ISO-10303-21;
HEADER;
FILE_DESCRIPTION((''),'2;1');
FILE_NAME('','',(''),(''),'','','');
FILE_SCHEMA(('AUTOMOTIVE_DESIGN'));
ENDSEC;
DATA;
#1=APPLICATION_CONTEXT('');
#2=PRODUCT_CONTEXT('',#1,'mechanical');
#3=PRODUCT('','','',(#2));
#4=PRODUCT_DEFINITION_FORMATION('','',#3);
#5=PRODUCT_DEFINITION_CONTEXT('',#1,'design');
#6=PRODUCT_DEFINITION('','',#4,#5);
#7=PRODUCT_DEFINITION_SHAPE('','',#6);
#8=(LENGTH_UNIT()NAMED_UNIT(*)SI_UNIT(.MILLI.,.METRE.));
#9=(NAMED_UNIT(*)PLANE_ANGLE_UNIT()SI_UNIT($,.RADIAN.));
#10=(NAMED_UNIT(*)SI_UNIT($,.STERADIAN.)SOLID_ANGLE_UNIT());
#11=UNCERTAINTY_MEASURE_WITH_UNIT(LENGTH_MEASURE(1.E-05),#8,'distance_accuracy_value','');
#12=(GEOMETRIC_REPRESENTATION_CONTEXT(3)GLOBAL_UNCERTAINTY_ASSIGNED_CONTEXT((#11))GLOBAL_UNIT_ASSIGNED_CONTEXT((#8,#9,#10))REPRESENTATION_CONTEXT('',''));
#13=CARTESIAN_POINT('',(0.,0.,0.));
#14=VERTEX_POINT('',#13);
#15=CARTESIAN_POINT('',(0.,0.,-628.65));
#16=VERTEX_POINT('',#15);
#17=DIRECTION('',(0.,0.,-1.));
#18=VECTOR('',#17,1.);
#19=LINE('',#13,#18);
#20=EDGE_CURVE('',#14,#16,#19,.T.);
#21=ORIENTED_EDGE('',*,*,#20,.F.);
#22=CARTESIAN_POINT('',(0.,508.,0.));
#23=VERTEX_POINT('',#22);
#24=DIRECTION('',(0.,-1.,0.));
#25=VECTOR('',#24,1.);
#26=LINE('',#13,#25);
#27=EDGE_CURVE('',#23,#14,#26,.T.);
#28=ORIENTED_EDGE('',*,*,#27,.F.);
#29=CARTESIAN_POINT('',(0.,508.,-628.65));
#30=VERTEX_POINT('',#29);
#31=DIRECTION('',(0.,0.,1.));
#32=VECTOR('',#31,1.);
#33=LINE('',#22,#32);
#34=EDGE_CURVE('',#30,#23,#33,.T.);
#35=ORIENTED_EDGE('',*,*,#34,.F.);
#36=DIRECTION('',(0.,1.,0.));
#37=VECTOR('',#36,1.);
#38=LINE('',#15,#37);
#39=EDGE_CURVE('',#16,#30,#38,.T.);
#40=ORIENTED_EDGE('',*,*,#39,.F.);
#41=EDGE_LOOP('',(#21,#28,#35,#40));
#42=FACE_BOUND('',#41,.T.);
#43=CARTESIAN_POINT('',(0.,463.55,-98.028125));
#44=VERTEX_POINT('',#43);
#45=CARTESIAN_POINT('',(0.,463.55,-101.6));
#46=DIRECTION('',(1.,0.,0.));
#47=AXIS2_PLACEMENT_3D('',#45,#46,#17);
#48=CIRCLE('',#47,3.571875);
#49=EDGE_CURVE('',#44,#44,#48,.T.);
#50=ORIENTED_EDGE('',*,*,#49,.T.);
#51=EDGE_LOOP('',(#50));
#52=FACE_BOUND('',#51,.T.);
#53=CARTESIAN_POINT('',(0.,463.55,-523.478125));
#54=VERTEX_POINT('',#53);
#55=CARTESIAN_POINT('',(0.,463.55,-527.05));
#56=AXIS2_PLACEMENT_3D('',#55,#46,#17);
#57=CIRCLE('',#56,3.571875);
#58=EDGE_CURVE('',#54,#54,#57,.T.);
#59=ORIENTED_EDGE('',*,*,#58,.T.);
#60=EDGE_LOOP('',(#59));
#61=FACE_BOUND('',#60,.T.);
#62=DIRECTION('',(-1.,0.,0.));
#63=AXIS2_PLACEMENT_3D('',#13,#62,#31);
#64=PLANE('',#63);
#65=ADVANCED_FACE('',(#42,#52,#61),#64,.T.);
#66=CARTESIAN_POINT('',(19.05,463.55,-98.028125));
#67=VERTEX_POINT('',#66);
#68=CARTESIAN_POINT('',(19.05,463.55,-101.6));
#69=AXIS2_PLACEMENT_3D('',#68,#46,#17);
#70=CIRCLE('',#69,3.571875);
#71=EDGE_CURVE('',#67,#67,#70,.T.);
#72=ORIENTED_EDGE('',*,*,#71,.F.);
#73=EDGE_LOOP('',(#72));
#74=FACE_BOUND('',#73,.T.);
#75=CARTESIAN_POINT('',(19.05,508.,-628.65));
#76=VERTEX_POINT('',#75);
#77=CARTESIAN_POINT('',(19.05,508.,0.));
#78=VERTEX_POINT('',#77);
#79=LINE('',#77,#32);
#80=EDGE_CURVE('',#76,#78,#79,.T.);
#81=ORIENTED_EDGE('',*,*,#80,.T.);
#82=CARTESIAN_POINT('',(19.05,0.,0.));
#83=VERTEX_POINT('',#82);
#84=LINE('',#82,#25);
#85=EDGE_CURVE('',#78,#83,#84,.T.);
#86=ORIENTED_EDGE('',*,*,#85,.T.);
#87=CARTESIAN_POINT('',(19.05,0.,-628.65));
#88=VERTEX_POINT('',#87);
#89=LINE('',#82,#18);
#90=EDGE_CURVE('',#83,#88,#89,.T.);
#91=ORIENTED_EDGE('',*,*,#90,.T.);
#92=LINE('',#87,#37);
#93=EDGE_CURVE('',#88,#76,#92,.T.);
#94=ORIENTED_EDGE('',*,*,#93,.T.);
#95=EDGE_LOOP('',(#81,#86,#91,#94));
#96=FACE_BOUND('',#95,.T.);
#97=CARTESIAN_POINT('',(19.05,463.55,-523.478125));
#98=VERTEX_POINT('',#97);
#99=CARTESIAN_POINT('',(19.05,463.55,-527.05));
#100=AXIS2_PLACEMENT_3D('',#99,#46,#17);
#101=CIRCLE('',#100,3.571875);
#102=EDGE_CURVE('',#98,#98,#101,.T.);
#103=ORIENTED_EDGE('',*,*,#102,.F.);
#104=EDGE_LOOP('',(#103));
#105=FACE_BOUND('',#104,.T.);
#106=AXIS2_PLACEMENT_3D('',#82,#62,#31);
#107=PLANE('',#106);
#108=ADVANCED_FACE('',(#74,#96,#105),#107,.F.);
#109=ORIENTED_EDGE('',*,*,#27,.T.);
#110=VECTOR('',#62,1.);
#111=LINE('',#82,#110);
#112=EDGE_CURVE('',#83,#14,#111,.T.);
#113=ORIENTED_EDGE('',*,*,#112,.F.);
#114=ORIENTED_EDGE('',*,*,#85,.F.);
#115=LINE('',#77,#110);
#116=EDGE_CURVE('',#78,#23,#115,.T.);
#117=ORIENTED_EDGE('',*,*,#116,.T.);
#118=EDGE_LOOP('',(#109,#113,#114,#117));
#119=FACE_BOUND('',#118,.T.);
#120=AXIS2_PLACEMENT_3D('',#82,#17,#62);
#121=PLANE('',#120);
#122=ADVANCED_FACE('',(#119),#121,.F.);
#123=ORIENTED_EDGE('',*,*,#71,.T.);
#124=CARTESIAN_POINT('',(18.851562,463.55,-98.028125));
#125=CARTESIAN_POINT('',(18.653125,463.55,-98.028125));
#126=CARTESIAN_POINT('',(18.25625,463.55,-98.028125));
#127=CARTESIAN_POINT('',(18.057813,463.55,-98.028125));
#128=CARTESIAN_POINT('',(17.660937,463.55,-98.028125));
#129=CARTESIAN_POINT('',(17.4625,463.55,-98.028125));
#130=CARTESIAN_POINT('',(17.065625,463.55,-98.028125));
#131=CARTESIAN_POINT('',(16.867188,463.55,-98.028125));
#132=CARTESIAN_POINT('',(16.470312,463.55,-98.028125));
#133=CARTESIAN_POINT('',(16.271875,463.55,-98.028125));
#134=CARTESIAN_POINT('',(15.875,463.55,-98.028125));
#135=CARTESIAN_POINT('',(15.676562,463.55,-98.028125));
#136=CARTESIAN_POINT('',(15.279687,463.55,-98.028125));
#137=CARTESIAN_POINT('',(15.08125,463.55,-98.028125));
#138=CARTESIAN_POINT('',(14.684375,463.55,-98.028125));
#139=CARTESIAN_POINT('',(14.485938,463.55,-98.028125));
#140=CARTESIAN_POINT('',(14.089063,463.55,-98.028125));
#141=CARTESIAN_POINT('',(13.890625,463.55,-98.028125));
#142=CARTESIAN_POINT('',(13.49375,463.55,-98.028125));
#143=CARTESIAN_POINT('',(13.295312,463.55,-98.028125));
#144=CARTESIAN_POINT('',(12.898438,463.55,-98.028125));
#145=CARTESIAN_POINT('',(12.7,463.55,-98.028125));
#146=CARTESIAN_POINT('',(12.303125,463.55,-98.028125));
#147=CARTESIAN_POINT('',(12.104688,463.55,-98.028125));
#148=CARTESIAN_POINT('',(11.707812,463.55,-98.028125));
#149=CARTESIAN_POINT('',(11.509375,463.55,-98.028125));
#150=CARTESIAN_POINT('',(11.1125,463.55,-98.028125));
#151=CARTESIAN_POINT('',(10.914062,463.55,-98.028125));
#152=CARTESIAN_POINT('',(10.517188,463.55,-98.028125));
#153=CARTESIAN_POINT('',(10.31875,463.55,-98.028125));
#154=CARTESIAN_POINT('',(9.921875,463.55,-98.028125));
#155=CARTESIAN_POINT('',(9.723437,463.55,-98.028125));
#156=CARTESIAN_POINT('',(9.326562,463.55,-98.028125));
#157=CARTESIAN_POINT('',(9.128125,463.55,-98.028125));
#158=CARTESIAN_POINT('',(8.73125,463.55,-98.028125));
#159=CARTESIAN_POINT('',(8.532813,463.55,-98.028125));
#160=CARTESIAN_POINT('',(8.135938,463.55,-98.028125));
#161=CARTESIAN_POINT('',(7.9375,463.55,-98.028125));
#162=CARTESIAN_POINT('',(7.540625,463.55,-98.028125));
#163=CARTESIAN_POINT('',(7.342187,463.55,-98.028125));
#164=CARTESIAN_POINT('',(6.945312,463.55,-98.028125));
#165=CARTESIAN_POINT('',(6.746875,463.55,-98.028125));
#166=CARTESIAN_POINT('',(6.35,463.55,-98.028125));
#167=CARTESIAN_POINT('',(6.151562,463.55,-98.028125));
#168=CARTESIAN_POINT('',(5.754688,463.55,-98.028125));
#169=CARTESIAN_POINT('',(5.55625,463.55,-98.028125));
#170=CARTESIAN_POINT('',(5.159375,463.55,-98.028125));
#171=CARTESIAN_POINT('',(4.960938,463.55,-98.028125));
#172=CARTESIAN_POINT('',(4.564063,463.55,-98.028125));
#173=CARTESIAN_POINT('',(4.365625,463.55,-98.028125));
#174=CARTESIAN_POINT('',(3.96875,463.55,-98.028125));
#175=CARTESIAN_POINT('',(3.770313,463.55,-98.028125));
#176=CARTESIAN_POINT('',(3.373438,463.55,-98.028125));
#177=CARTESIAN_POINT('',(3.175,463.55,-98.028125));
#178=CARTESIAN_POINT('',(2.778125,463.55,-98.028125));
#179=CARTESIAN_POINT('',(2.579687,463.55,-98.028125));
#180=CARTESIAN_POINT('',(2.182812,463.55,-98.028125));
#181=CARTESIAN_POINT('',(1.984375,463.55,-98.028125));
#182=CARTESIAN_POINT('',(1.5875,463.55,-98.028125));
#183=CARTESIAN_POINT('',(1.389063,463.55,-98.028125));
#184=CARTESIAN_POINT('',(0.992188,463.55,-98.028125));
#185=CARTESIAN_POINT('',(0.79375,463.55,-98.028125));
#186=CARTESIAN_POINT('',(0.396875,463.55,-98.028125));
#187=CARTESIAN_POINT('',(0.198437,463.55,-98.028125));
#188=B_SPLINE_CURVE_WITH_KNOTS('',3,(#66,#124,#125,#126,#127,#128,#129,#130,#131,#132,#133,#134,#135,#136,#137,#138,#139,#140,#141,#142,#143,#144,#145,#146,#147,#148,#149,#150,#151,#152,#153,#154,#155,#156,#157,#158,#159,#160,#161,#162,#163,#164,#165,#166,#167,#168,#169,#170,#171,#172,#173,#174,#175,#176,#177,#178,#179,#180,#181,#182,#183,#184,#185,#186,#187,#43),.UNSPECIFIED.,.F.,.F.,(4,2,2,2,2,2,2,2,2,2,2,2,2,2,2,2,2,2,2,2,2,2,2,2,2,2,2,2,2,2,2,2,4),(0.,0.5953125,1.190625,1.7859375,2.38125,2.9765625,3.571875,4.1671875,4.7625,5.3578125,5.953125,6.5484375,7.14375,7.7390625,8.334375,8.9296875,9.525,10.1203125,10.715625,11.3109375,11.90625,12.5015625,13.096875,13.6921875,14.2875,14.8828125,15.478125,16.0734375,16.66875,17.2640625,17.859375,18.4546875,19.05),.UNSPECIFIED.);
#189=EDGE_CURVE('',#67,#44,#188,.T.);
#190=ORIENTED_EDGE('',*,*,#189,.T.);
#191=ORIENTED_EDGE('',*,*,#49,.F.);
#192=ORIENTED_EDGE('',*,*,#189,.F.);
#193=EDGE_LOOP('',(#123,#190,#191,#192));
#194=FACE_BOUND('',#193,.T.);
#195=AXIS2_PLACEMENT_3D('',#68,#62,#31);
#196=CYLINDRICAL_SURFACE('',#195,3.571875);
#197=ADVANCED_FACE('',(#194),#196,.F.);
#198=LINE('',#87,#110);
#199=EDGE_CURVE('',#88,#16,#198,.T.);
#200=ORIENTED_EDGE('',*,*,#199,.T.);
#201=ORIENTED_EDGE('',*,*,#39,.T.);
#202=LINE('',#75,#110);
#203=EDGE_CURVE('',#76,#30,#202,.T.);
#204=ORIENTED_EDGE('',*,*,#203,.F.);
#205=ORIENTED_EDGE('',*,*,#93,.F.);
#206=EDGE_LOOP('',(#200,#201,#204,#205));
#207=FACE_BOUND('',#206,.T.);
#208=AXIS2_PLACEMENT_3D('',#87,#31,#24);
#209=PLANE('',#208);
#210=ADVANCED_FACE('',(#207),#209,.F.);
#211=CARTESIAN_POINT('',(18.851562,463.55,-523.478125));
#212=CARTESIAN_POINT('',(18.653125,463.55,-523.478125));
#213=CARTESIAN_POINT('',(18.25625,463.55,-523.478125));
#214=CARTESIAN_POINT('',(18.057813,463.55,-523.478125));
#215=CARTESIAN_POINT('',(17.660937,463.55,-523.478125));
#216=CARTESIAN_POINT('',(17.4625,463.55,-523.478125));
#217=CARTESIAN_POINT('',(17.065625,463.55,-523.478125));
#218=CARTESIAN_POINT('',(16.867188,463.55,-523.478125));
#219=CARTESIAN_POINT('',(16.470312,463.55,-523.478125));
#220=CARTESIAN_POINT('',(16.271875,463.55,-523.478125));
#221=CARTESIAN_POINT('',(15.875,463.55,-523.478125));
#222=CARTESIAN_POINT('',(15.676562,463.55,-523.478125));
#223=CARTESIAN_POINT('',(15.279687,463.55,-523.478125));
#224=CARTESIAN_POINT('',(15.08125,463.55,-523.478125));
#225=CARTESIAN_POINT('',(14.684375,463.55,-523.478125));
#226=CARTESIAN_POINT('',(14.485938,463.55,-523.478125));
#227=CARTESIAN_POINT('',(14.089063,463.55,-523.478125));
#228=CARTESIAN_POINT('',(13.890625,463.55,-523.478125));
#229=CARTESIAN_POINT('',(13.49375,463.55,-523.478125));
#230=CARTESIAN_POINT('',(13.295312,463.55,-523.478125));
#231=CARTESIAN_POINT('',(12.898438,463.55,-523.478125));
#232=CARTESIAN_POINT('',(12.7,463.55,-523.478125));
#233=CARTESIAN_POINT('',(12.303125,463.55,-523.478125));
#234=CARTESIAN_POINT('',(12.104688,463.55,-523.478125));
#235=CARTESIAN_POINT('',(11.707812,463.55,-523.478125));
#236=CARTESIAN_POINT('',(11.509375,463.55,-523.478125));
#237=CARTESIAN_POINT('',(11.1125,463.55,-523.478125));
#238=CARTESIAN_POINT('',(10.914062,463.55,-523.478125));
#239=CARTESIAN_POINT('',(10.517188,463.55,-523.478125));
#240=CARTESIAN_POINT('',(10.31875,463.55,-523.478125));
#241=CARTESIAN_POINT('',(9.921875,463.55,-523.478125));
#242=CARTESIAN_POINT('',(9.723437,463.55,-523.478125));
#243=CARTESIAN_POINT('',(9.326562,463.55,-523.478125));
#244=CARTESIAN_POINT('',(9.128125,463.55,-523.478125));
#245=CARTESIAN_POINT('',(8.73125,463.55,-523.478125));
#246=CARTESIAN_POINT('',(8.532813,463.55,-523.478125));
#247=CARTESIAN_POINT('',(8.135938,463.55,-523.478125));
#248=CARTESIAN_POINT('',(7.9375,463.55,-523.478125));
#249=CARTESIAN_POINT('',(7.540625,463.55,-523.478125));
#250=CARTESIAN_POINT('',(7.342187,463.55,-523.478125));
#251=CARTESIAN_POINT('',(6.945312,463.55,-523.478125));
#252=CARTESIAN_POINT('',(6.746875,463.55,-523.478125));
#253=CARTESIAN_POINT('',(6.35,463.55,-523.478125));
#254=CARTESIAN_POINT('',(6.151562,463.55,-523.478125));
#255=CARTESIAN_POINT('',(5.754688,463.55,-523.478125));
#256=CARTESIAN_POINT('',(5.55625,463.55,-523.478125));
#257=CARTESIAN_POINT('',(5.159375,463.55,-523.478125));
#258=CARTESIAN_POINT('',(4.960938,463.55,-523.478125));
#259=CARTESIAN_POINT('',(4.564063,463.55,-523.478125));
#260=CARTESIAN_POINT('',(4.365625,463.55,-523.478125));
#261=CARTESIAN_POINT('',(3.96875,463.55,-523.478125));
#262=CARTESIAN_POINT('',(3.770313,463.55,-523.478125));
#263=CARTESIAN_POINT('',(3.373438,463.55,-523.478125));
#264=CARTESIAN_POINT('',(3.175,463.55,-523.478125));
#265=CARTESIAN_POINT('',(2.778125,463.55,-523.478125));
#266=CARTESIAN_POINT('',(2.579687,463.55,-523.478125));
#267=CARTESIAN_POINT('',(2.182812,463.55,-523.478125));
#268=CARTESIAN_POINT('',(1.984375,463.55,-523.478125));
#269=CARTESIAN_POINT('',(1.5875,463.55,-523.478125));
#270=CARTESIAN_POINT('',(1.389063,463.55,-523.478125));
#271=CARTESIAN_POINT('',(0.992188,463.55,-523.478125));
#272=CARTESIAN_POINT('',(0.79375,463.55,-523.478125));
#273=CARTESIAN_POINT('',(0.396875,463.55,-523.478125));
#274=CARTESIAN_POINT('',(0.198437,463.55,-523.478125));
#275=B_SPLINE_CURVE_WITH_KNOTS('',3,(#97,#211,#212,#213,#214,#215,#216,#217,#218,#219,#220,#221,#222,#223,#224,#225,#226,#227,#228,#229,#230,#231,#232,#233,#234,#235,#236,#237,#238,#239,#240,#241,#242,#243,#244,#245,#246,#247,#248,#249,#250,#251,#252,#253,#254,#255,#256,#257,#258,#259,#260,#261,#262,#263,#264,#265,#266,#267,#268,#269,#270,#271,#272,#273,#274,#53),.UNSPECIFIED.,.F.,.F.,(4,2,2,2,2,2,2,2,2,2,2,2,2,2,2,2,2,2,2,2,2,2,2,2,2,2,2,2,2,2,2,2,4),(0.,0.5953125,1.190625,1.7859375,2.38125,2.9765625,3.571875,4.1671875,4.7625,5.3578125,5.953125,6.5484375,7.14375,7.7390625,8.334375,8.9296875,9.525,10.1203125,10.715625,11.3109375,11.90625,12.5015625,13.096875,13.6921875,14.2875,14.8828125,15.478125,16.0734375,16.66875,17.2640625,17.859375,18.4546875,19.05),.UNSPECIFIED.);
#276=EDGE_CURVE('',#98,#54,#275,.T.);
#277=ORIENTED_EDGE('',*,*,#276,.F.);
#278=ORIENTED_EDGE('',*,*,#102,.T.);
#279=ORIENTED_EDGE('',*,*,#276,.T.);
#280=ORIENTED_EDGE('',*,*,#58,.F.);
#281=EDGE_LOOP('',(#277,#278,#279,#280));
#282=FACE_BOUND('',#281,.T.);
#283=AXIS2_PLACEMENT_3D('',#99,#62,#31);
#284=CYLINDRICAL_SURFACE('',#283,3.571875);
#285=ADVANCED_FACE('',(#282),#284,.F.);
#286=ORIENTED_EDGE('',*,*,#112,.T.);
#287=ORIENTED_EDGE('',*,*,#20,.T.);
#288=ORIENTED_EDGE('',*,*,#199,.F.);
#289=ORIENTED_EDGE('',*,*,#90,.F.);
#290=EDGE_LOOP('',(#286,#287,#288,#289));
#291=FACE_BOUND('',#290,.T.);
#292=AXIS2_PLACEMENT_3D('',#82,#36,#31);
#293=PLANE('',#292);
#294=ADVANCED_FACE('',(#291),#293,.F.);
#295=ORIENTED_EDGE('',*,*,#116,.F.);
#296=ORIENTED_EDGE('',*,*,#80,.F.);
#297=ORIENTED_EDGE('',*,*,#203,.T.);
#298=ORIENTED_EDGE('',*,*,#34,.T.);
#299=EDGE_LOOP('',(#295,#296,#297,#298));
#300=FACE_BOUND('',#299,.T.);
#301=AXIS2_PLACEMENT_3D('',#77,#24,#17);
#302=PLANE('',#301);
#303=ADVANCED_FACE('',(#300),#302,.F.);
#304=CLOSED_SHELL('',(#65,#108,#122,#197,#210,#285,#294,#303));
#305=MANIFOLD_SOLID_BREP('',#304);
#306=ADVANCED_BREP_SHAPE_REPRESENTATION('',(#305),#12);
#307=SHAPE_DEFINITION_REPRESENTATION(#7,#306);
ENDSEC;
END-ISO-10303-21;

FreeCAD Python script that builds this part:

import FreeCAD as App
import Part
import Sketcher
Q = App.Units.Quantity


def add_polygon(sketch, points):
    """Adds a closed chain of lines whose ends are joined by coincident constraints."""
    first, n = sketch.GeometryCount, len(points)
    for a, b in zip(points, points[1:] + points[:1]):
        sketch.addGeometry(Part.LineSegment(App.Vector(*a, 0), App.Vector(*b, 0)), False)
    for i in range(n):
        sketch.addConstraint(Sketcher.Constraint("Coincident", first + i, 2, first + (i + 1) % n, 1))

doc = App.newDocument("Part")
body = doc.addObject("PartDesign::Body", "Body")

# Sketch on YZ plane
sketch1 = body.newObject("Sketcher::SketchObject", "Sketch")
sketch1.AttachmentSupport = (doc.getObject("YZ_Plane"), [""])
sketch1.MapMode = "FlatFace"
add_polygon(sketch1, [(508, 0), (0, 0), (0, -628.65), (508, -628.65)])  # lines 0-3
sketch1.addGeometry(Part.Circle(App.Vector(463.55, -101.6, 0), App.Vector(0, 0, 1), 3.571875), False)  # 4
sketch1.addGeometry(Part.Circle(App.Vector(463.55, -527.05, 0), App.Vector(0, 0, 1), 3.571875), False)  # 5
sketch1.addConstraint([
    Sketcher.Constraint("Horizontal", 0),
    Sketcher.Constraint("Vertical", 1),
    Sketcher.Constraint("Horizontal", 2),
    Sketcher.Constraint("Vertical", 3),
    Sketcher.Constraint("Coincident", 0, 2, -1, 1),
    Sketcher.Constraint("Equal", 4, 5),
    Sketcher.Constraint("Vertical", 4, 3, 5, 3),
    Sketcher.Constraint("DistanceX", 0, 2, 0, 1, Q("20 in")),
    Sketcher.Constraint("Diameter", 4, Q("0.28125 in")),
    Sketcher.Constraint("DistanceY", 4, 3, -1, 1, Q("4 in")),
    Sketcher.Constraint("DistanceY", 1, 2, 5, 3, Q("4 in")),
    Sketcher.Constraint("DistanceY", 1, 2, 1, 1, Q("24.75 in")),
    Sketcher.Constraint("DistanceX", -1, 1, 4, 3, Q("18.25 in")),
])
pad1 = body.newObject("PartDesign::Pad", "Pad")
pad1.Profile = sketch1
pad1.Length = Q("0.75 in")

doc.recompute()
